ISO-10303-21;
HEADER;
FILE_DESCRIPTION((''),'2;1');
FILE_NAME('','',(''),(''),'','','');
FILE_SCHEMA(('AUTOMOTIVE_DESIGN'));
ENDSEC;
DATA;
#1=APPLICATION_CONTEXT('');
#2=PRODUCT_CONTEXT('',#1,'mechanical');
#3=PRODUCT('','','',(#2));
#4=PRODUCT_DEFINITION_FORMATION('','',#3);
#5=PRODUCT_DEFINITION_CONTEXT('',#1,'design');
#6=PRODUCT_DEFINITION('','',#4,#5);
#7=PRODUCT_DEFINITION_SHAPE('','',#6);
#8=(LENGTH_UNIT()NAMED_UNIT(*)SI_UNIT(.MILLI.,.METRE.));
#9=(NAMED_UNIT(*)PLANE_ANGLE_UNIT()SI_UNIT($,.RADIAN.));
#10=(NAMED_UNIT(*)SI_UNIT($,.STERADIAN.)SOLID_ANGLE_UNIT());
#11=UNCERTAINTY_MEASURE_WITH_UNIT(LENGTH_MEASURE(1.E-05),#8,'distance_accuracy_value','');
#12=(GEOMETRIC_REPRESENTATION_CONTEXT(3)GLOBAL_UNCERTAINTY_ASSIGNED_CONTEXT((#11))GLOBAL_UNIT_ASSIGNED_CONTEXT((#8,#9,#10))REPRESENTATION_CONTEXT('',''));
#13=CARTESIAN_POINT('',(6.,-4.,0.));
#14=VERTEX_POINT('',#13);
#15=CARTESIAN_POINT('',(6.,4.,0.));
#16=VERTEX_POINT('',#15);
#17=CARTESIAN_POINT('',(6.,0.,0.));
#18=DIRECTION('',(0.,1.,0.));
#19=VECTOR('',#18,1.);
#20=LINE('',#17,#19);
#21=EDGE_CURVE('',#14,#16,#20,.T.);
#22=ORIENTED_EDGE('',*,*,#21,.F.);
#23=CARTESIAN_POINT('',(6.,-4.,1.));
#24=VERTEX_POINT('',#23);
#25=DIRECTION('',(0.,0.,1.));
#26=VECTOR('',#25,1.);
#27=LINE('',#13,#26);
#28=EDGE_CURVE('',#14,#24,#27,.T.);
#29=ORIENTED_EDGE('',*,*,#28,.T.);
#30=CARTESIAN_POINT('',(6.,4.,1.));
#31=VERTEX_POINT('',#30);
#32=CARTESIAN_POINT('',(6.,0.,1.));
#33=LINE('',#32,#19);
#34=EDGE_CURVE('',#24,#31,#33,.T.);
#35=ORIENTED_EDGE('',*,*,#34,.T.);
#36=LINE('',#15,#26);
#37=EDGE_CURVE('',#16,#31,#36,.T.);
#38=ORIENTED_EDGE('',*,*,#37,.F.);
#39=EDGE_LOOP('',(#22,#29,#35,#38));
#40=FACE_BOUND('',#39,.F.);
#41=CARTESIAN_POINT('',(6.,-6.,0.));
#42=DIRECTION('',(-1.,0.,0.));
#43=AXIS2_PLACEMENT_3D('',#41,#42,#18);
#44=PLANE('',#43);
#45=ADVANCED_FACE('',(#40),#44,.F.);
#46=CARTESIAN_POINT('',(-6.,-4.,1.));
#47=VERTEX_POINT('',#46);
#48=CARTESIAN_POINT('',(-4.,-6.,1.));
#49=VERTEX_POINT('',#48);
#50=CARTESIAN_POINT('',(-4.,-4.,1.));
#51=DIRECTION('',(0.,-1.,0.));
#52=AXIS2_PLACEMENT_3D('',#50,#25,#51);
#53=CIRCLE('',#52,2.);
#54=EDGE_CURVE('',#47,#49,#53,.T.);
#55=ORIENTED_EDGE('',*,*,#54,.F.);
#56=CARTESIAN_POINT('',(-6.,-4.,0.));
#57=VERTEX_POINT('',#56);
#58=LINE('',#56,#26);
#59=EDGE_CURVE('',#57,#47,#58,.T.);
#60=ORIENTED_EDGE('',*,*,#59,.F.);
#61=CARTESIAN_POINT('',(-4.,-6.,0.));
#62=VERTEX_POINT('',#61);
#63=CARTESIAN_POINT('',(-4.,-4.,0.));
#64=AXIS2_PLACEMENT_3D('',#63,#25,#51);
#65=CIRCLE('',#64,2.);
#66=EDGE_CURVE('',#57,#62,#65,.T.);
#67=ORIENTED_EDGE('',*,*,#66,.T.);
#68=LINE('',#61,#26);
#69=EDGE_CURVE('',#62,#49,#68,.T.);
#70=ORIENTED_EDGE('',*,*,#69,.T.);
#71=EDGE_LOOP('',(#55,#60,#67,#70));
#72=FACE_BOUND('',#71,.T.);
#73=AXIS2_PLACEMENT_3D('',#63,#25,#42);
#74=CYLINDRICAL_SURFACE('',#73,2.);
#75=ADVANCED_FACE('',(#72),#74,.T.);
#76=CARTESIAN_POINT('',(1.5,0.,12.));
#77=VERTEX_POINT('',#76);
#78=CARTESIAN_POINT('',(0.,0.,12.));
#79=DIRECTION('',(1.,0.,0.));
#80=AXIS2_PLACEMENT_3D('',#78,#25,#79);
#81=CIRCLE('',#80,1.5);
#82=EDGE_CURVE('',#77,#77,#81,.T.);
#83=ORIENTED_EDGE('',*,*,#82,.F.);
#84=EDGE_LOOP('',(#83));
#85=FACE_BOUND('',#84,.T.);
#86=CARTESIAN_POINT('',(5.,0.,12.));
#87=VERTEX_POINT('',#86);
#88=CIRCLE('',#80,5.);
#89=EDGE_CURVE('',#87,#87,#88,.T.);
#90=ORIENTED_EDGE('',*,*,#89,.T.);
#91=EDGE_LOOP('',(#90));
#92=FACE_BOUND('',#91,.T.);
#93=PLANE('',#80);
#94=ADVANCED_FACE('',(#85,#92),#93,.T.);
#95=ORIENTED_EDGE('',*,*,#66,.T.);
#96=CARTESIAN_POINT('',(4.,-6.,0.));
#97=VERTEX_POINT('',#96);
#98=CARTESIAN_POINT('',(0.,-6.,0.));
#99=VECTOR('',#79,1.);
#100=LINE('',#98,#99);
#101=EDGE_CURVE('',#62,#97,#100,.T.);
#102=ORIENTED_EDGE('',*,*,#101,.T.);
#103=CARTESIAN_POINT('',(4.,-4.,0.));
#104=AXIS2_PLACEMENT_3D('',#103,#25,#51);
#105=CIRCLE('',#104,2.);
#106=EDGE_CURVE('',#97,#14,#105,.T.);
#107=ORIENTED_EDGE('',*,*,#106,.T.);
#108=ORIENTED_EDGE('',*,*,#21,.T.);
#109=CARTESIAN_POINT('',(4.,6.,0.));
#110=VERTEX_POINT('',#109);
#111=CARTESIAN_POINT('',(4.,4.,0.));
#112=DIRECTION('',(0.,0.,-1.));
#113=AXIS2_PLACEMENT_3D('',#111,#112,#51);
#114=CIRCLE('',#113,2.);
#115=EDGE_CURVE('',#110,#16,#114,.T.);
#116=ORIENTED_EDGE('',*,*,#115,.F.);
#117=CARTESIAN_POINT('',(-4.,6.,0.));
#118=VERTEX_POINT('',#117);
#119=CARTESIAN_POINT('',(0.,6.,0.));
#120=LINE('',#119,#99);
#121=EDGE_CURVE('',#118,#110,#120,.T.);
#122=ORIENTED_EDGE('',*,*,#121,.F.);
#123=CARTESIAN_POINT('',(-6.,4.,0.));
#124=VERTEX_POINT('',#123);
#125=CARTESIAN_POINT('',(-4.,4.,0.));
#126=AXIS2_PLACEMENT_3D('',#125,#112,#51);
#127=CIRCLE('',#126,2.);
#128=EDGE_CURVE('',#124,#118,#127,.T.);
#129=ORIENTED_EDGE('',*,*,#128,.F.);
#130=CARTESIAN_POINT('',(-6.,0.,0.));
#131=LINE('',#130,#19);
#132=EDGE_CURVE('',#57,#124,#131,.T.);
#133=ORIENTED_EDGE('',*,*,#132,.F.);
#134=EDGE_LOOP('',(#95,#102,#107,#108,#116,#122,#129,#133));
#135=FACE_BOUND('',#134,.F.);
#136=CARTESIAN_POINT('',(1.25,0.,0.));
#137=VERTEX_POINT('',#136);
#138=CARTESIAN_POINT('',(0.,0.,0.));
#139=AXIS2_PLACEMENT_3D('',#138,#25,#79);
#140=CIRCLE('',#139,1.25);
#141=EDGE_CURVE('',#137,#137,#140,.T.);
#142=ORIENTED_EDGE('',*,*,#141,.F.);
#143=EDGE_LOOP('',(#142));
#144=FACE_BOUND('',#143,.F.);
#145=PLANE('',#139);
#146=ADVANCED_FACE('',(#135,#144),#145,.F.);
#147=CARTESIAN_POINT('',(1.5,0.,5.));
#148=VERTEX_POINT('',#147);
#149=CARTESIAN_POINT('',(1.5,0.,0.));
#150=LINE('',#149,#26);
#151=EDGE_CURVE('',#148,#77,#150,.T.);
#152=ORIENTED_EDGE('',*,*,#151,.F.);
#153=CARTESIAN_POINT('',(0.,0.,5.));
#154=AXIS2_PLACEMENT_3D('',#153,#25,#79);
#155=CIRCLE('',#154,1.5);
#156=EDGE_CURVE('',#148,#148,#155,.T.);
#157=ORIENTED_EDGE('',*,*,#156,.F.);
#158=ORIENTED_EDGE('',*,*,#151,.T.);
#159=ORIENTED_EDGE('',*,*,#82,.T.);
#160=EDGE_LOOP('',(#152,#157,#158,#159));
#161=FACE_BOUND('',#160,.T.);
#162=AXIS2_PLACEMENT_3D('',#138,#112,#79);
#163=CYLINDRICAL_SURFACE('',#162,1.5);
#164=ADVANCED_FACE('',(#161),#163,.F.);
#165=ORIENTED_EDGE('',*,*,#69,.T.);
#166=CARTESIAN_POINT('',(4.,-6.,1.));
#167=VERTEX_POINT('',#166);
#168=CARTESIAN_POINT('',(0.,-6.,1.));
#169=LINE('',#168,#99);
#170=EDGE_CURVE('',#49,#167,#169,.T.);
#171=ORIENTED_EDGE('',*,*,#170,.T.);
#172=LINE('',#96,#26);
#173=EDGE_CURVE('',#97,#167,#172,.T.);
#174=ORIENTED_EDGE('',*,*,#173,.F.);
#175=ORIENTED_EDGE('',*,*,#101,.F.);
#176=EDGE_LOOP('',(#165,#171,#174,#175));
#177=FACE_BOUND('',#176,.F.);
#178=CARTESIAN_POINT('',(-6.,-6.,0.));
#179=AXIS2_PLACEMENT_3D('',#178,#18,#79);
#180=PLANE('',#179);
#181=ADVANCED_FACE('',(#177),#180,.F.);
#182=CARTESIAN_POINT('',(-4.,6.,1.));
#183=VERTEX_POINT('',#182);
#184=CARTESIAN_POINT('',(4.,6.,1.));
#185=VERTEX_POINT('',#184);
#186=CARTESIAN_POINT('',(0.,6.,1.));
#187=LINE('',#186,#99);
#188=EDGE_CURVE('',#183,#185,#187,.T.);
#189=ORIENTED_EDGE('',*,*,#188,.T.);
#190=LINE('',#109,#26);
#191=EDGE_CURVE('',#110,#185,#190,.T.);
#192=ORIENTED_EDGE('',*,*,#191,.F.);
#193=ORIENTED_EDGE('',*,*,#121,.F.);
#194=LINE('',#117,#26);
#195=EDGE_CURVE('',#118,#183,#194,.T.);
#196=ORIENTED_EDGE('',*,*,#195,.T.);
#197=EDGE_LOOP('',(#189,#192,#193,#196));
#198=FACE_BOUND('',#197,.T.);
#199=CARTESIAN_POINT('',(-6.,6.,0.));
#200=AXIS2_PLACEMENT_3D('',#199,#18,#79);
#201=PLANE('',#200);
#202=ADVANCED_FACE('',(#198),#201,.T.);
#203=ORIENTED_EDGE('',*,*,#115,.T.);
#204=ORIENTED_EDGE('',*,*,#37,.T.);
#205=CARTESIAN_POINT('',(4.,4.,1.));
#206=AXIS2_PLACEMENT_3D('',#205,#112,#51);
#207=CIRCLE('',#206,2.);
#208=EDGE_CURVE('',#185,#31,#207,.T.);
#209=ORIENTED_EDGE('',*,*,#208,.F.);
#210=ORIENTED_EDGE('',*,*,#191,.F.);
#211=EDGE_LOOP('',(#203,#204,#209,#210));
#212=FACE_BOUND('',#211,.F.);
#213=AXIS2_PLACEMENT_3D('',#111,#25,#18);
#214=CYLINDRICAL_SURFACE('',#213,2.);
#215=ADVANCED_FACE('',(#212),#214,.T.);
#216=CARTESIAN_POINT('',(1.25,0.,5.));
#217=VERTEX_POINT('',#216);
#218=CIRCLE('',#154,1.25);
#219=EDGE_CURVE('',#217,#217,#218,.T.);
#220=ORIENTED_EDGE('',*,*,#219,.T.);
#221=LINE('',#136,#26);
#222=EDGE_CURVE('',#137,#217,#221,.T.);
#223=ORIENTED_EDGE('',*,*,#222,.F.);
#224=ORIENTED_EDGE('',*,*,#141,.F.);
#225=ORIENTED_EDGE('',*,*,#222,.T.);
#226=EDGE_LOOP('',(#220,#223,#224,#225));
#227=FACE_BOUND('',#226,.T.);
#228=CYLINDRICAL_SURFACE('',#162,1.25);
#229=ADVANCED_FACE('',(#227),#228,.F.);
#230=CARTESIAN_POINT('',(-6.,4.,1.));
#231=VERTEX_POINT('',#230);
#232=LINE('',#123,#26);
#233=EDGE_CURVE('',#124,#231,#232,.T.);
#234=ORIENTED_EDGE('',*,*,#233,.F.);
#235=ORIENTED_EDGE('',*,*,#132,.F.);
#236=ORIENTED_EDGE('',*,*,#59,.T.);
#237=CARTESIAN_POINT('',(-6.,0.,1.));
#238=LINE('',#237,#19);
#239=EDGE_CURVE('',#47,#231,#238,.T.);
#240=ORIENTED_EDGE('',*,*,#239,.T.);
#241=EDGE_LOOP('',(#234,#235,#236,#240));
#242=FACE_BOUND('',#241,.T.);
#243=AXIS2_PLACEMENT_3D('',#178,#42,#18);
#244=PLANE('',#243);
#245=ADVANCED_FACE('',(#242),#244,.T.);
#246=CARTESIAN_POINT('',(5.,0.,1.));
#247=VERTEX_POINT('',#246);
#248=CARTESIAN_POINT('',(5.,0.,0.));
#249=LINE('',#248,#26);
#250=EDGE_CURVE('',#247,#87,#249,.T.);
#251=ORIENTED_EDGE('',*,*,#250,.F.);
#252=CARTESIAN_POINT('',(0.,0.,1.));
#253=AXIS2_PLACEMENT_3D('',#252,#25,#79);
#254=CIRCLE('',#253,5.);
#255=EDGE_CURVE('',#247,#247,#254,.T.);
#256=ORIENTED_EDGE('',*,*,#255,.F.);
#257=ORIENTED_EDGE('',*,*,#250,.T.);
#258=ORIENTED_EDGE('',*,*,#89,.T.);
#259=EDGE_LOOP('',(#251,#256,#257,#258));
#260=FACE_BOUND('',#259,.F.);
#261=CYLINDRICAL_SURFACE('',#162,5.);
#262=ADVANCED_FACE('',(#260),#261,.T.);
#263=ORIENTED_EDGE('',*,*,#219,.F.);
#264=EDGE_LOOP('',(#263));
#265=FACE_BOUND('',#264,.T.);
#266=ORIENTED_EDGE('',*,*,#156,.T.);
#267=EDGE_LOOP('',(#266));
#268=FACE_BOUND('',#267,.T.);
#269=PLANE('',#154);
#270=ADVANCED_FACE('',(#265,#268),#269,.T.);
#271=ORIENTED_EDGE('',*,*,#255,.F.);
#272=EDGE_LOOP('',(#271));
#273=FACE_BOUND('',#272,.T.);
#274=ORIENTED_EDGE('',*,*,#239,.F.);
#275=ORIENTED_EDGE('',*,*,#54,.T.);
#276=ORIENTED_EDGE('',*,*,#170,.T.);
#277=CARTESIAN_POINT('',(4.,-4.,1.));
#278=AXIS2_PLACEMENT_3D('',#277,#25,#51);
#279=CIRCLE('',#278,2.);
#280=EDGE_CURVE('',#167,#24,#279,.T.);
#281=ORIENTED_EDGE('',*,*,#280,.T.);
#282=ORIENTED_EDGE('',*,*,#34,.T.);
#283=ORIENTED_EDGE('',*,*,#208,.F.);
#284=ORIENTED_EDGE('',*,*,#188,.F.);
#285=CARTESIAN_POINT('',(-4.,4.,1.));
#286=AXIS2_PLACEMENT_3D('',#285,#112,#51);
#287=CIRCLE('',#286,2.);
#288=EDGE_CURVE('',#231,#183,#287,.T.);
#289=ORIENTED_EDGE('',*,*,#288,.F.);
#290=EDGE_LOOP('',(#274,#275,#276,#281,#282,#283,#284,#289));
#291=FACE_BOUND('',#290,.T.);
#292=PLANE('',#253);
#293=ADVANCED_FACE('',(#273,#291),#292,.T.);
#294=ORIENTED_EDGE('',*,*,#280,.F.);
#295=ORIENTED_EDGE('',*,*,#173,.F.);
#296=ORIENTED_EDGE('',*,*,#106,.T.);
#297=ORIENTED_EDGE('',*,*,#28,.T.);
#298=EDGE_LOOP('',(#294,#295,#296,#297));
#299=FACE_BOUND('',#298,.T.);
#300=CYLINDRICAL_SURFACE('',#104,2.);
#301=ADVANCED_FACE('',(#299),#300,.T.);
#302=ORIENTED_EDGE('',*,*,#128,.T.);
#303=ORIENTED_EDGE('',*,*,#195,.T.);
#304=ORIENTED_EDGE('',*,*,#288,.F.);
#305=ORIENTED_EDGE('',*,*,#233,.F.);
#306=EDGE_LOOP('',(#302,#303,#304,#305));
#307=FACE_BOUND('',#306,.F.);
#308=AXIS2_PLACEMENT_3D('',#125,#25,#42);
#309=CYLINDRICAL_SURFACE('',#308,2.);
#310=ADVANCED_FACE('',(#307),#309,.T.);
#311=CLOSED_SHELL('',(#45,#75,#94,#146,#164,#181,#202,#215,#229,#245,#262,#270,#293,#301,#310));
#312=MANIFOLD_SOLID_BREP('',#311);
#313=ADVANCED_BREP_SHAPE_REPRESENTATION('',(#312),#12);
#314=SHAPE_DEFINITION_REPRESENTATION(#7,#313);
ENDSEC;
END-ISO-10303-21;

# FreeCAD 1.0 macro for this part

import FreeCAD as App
import Part
import Sketcher

V = App.Vector


def edges_at(feature, points):
    """Names of the edges that pass closest to the given points."""
    edges = feature.Shape.Edges
    near = lambda p: min(range(len(edges)), key=lambda i: edges[i].distToShape(Part.Vertex(*p))[0])
    return sorted({f"Edge{near(p) + 1}" for p in points})


def add_polygon(sketch, points):
    """Adds a closed chain of lines whose ends are joined by coincident constraints."""
    first, n = sketch.GeometryCount, len(points)
    for a, b in zip(points, points[1:] + points[:1]):
        sketch.addGeometry(Part.LineSegment(App.Vector(*a, 0), App.Vector(*b, 0)), False)
    for i in range(n):
        sketch.addConstraint(Sketcher.Constraint("Coincident", first + i, 2, first + (i + 1) % n, 1))

doc = App.newDocument("Part")
body = doc.addObject("PartDesign::Body", "Body")

# Sketch on XY plane
sketch1 = body.newObject("Sketcher::SketchObject", "Sketch")
sketch1.AttachmentSupport = (doc.getObject("XY_Plane"), [""])
sketch1.MapMode = "FlatFace"
sketch1.addGeometry([
    Part.Circle(V(0, 0, 0), V(0, 0, 1), 5),
    Part.Circle(V(0, 0, 0), V(0, 0, 1), 1.5),
], False)
sketch1.addConstraint([
    Sketcher.Constraint("Coincident", 0, 3, -1, 1),
    Sketcher.Constraint("Coincident", 1, 3, -1, 1),
    Sketcher.Constraint("Diameter", 0, 10.0),
    Sketcher.Constraint("Diameter", 1, 3.0),
])
pad1 = body.newObject("PartDesign::Pad", "Pad")
pad1.Profile = sketch1
pad1.Length = 12

# Sketch on XY plane
sketch2 = body.newObject("Sketcher::SketchObject", "Sketch001")
sketch2.AttachmentSupport = (doc.getObject("XY_Plane"), [""])
sketch2.MapMode = "FlatFace"
sketch2.addGeometry([
    Part.Circle(V(0, 0, 0), V(0, 0, 1), 1.5),
    Part.Circle(V(0, 0, 0), V(0, 0, 1), 1.25),
], False)
sketch2.addConstraint([
    Sketcher.Constraint("Coincident", 0, 3, -1, 1),
    Sketcher.Constraint("Coincident", 1, 3, -1, 1),
    Sketcher.Constraint("Diameter", 0, 3.0),
    Sketcher.Constraint("Diameter", 1, 2.5),
])
pad2 = body.newObject("PartDesign::Pad", "Pad001")
pad2.Profile = sketch2
pad2.Length = 5

# Sketch on XY plane
sketch3 = body.newObject("Sketcher::SketchObject", "Sketch002")
sketch3.AttachmentSupport = (doc.getObject("XY_Plane"), [""])
sketch3.MapMode = "FlatFace"
add_polygon(sketch3, [(-6, 6), (-6, -6), (6, -6), (6, 6)])  # lines 0-3
sketch3.addGeometry(Part.Circle(V(0, 0, 0), V(0, 0, 1), 5), False)  # 4
sketch3.addConstraint([
    Sketcher.Constraint("Vertical", 0),
    Sketcher.Constraint("Horizontal", 1),
    Sketcher.Constraint("Vertical", 2),
    Sketcher.Constraint("Horizontal", 3),
    Sketcher.Constraint("Coincident", 4, 3, -1, 1),
    Sketcher.Constraint("Symmetric", 0, 2, 2, 2, -1, 1),
    Sketcher.Constraint("Equal", 3, 0),
    Sketcher.Constraint("Diameter", 4, 10.0),
    Sketcher.Constraint("DistanceX", 1, 1, 1, 2, 12.0),
])
pad3 = body.newObject("PartDesign::Pad", "Pad002")
pad3.Profile = sketch3
pad3.Length = 1
doc.recompute()

fillet = body.newObject("PartDesign::Fillet", "Fillet")
fillet.Base = (pad3, edges_at(pad3, [
    (-6, -6, 0.5),
    (-6, 6, 0.5),
    (6, -6, 0.5),
    (6, 6, 0.5),
]))
fillet.Radius = 2

doc.recompute()
